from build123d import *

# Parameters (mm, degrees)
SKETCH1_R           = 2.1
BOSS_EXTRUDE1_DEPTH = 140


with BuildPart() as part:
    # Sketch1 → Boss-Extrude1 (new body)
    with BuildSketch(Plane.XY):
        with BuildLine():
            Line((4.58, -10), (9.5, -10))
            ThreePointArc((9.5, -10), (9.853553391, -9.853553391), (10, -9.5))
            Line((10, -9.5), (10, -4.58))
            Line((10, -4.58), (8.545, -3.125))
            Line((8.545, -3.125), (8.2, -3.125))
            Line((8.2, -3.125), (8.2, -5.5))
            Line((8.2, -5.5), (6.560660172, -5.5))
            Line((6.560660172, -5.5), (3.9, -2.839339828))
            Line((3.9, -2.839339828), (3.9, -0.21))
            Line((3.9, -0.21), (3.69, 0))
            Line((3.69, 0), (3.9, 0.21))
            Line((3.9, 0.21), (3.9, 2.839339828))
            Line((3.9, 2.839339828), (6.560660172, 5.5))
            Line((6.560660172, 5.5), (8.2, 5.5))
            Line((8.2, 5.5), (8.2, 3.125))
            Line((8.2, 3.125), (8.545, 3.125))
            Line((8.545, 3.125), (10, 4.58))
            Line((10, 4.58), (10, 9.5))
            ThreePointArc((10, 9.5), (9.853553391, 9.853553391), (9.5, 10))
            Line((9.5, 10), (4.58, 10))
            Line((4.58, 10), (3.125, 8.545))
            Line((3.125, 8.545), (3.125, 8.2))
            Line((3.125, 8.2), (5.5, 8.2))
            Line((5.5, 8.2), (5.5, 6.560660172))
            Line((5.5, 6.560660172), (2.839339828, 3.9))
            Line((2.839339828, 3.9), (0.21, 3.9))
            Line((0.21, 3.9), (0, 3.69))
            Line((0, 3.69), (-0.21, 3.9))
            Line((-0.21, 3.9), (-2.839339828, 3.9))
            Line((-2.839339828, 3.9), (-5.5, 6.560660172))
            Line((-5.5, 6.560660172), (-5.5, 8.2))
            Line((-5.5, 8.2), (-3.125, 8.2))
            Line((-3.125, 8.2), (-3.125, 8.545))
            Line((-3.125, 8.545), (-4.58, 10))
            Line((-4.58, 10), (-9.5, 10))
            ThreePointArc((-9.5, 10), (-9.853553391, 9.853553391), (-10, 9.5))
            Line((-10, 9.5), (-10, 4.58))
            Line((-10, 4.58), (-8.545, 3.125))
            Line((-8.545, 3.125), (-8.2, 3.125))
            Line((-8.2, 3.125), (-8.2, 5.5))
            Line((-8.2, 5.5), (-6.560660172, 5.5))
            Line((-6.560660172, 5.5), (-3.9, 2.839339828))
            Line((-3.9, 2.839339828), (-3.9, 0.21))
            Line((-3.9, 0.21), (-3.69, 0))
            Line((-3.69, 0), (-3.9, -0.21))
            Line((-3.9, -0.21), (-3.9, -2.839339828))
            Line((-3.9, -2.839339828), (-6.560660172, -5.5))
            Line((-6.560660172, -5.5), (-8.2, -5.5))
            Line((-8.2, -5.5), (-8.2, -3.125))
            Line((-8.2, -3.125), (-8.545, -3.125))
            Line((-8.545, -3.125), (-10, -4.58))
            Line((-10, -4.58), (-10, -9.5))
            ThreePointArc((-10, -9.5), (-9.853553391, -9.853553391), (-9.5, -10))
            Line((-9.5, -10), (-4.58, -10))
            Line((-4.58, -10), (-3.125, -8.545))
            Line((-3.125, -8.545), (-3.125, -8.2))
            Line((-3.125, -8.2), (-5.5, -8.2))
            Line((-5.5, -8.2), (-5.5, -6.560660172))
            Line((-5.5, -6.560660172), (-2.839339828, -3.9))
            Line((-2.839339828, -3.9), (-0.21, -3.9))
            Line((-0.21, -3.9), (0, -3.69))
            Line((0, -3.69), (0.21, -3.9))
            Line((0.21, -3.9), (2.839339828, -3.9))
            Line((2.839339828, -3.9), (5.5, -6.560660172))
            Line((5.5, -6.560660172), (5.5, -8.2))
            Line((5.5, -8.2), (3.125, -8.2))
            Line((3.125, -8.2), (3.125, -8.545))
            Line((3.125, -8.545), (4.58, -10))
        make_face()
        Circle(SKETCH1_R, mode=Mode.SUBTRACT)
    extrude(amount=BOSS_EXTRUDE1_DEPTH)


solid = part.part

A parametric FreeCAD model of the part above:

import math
import FreeCAD as App
import Part
import Sketcher
from FreeCAD import Vector

doc = App.newDocument("Part")
body = doc.addObject("PartDesign::Body", "Body")

sketch1 = body.newObject("Sketcher::SketchObject", "Sketch")
sketch1.AttachmentSupport = (doc.getObject("XY_Plane"), [""])
sketch1.MapMode = "FlatFace"
sketch1.addGeometry([
    Part.LineSegment(Vector(4.58, -10, 0), Vector(9.5, -10, 0)),
    Part.ArcOfCircle(Part.Circle(Vector(9.5, -9.5, 0), Vector(0, 0, 1), 0.5), math.radians(-90), math.radians(0)),
    Part.LineSegment(Vector(10, -9.5, 0), Vector(10, -4.58, 0)),
    Part.LineSegment(Vector(10, -4.58, 0), Vector(8.54, -3.12, 0)),
    Part.LineSegment(Vector(8.54, -3.12, 0), Vector(8.2, -3.12, 0)),
    Part.LineSegment(Vector(8.2, -3.12, 0), Vector(8.2, -5.5, 0)),
    Part.LineSegment(Vector(8.2, -5.5, 0), Vector(6.56, -5.5, 0)),
    Part.LineSegment(Vector(6.56, -5.5, 0), Vector(3.9, -2.84, 0)),
    Part.LineSegment(Vector(3.9, -2.84, 0), Vector(3.9, -0.21, 0)),
    Part.LineSegment(Vector(3.9, -0.21, 0), Vector(3.69, 0, 0)),
    Part.LineSegment(Vector(3.69, 0, 0), Vector(3.9, 0.21, 0)),
    Part.LineSegment(Vector(3.9, 0.21, 0), Vector(3.9, 2.84, 0)),
    Part.LineSegment(Vector(3.9, 2.84, 0), Vector(6.56, 5.5, 0)),
    Part.LineSegment(Vector(6.56, 5.5, 0), Vector(8.2, 5.5, 0)),
    Part.LineSegment(Vector(8.2, 5.5, 0), Vector(8.2, 3.12, 0)),
    Part.LineSegment(Vector(8.2, 3.12, 0), Vector(8.54, 3.12, 0)),
    Part.LineSegment(Vector(8.54, 3.12, 0), Vector(10, 4.58, 0)),
    Part.LineSegment(Vector(10, 4.58, 0), Vector(10, 9.5, 0)),
    Part.ArcOfCircle(Part.Circle(Vector(9.5, 9.5, 0), Vector(0, 0, 1), 0.5), math.radians(0), math.radians(90)),
    Part.LineSegment(Vector(9.5, 10, 0), Vector(4.58, 10, 0)),
    Part.LineSegment(Vector(4.58, 10, 0), Vector(3.12, 8.54, 0)),
    Part.LineSegment(Vector(3.12, 8.54, 0), Vector(3.12, 8.2, 0)),
    Part.LineSegment(Vector(3.12, 8.2, 0), Vector(5.5, 8.2, 0)),
    Part.LineSegment(Vector(5.5, 8.2, 0), Vector(5.5, 6.56, 0)),
    Part.LineSegment(Vector(5.5, 6.56, 0), Vector(2.84, 3.9, 0)),
    Part.LineSegment(Vector(2.84, 3.9, 0), Vector(0.21, 3.9, 0)),
    Part.LineSegment(Vector(0.21, 3.9, 0), Vector(0, 3.69, 0)),
    Part.LineSegment(Vector(0, 3.69, 0), Vector(-0.21, 3.9, 0)),
    Part.LineSegment(Vector(-0.21, 3.9, 0), Vector(-2.84, 3.9, 0)),
    Part.LineSegment(Vector(-2.84, 3.9, 0), Vector(-5.5, 6.56, 0)),
    Part.LineSegment(Vector(-5.5, 6.56, 0), Vector(-5.5, 8.2, 0)),
    Part.LineSegment(Vector(-5.5, 8.2, 0), Vector(-3.12, 8.2, 0)),
    Part.LineSegment(Vector(-3.12, 8.2, 0), Vector(-3.12, 8.54, 0)),
    Part.LineSegment(Vector(-3.12, 8.54, 0), Vector(-4.58, 10, 0)),
    Part.LineSegment(Vector(-4.58, 10, 0), Vector(-9.5, 10, 0)),
    Part.ArcOfCircle(Part.Circle(Vector(-9.5, 9.5, 0), Vector(0, 0, 1), 0.5), math.radians(90), math.radians(180)),
    Part.LineSegment(Vector(-10, 9.5, 0), Vector(-10, 4.58, 0)),
    Part.LineSegment(Vector(-10, 4.58, 0), Vector(-8.54, 3.12, 0)),
    Part.LineSegment(Vector(-8.54, 3.12, 0), Vector(-8.2, 3.12, 0)),
    Part.LineSegment(Vector(-8.2, 3.12, 0), Vector(-8.2, 5.5, 0)),
    Part.LineSegment(Vector(-8.2, 5.5, 0), Vector(-6.56, 5.5, 0)),
    Part.LineSegment(Vector(-6.56, 5.5, 0), Vector(-3.9, 2.84, 0)),
    Part.LineSegment(Vector(-3.9, 2.84, 0), Vector(-3.9, 0.21, 0)),
    Part.LineSegment(Vector(-3.9, 0.21, 0), Vector(-3.69, 0, 0)),
    Part.LineSegment(Vector(-3.69, 0, 0), Vector(-3.9, -0.21, 0)),
    Part.LineSegment(Vector(-3.9, -0.21, 0), Vector(-3.9, -2.84, 0)),
    Part.LineSegment(Vector(-3.9, -2.84, 0), Vector(-6.56, -5.5, 0)),
    Part.LineSegment(Vector(-6.56, -5.5, 0), Vector(-8.2, -5.5, 0)),
    Part.LineSegment(Vector(-8.2, -5.5, 0), Vector(-8.2, -3.12, 0)),
    Part.LineSegment(Vector(-8.2, -3.12, 0), Vector(-8.54, -3.12, 0)),
    Part.LineSegment(Vector(-8.54, -3.12, 0), Vector(-10, -4.58, 0)),
    Part.LineSegment(Vector(-10, -4.58, 0), Vector(-10, -9.5, 0)),
    Part.ArcOfCircle(Part.Circle(Vector(-9.5, -9.5, 0), Vector(0, 0, 1), 0.5), math.radians(180), math.radians(270)),
    Part.LineSegment(Vector(-9.5, -10, 0), Vector(-4.58, -10, 0)),
    Part.LineSegment(Vector(-4.58, -10, 0), Vector(-3.12, -8.54, 0)),
    Part.LineSegment(Vector(-3.12, -8.54, 0), Vector(-3.12, -8.2, 0)),
    Part.LineSegment(Vector(-3.12, -8.2, 0), Vector(-5.5, -8.2, 0)),
    Part.LineSegment(Vector(-5.5, -8.2, 0), Vector(-5.5, -6.56, 0)),
    Part.LineSegment(Vector(-5.5, -6.56, 0), Vector(-2.84, -3.9, 0)),
    Part.LineSegment(Vector(-2.84, -3.9, 0), Vector(-0.21, -3.9, 0)),
    Part.LineSegment(Vector(-0.21, -3.9, 0), Vector(0, -3.69, 0)),
    Part.LineSegment(Vector(0, -3.69, 0), Vector(0.21, -3.9, 0)),
    Part.LineSegment(Vector(0.21, -3.9, 0), Vector(2.84, -3.9, 0)),
    Part.LineSegment(Vector(2.84, -3.9, 0), Vector(5.5, -6.56, 0)),
    Part.LineSegment(Vector(5.5, -6.56, 0), Vector(5.5, -8.2, 0)),
    Part.LineSegment(Vector(5.5, -8.2, 0), Vector(3.12, -8.2, 0)),
    Part.LineSegment(Vector(3.12, -8.2, 0), Vector(3.12, -8.54, 0)),
    Part.LineSegment(Vector(3.12, -8.54, 0), Vector(4.58, -10, 0)),
    Part.Circle(Vector(0, 0, 0), Vector(0, 0, 1), 2.1),
], False)
sketch1.addConstraint([
    Sketcher.Constraint("Tangent", 0, 2, 1, 1),
    Sketcher.Constraint("Tangent", 1, 2, 2, 1),
    Sketcher.Constraint("Coincident", 2, 2, 3, 1),
    Sketcher.Constraint("Coincident", 3, 2, 4, 1),
    Sketcher.Constraint("Coincident", 4, 2, 5, 1),
    Sketcher.Constraint("Coincident", 5, 2, 6, 1),
    Sketcher.Constraint("Coincident", 6, 2, 7, 1),
    Sketcher.Constraint("Coincident", 7, 2, 8, 1),
    Sketcher.Constraint("Coincident", 8, 2, 9, 1),
    Sketcher.Constraint("Coincident", 9, 2, 10, 1),
    Sketcher.Constraint("Coincident", 10, 2, 11, 1),
    Sketcher.Constraint("Coincident", 11, 2, 12, 1),
    Sketcher.Constraint("Coincident", 12, 2, 13, 1),
    Sketcher.Constraint("Coincident", 13, 2, 14, 1),
    Sketcher.Constraint("Coincident", 14, 2, 15, 1),
    Sketcher.Constraint("Coincident", 15, 2, 16, 1),
    Sketcher.Constraint("Coincident", 16, 2, 17, 1),
    Sketcher.Constraint("Tangent", 17, 2, 18, 1),
    Sketcher.Constraint("Tangent", 18, 2, 19, 1),
    Sketcher.Constraint("Coincident", 19, 2, 20, 1),
    Sketcher.Constraint("Coincident", 20, 2, 21, 1),
    Sketcher.Constraint("Coincident", 21, 2, 22, 1),
    Sketcher.Constraint("Coincident", 22, 2, 23, 1),
    Sketcher.Constraint("Coincident", 23, 2, 24, 1),
    Sketcher.Constraint("Coincident", 24, 2, 25, 1),
    Sketcher.Constraint("Coincident", 25, 2, 26, 1),
    Sketcher.Constraint("Coincident", 26, 2, 27, 1),
    Sketcher.Constraint("Coincident", 27, 2, 28, 1),
    Sketcher.Constraint("Coincident", 28, 2, 29, 1),
    Sketcher.Constraint("Coincident", 29, 2, 30, 1),
    Sketcher.Constraint("Coincident", 30, 2, 31, 1),
    Sketcher.Constraint("Coincident", 31, 2, 32, 1),
    Sketcher.Constraint("Coincident", 32, 2, 33, 1),
    Sketcher.Constraint("Coincident", 33, 2, 34, 1),
    Sketcher.Constraint("Tangent", 34, 2, 35, 1),
    Sketcher.Constraint("Tangent", 35, 2, 36, 1),
    Sketcher.Constraint("Coincident", 36, 2, 37, 1),
    Sketcher.Constraint("Coincident", 37, 2, 38, 1),
    Sketcher.Constraint("Coincident", 38, 2, 39, 1),
    Sketcher.Constraint("Coincident", 39, 2, 40, 1),
    Sketcher.Constraint("Coincident", 40, 2, 41, 1),
    Sketcher.Constraint("Coincident", 41, 2, 42, 1),
    Sketcher.Constraint("Coincident", 42, 2, 43, 1),
    Sketcher.Constraint("Coincident", 43, 2, 44, 1),
    Sketcher.Constraint("Coincident", 44, 2, 45, 1),
    Sketcher.Constraint("Coincident", 45, 2, 46, 1),
    Sketcher.Constraint("Coincident", 46, 2, 47, 1),
    Sketcher.Constraint("Coincident", 47, 2, 48, 1),
    Sketcher.Constraint("Coincident", 48, 2, 49, 1),
    Sketcher.Constraint("Coincident", 49, 2, 50, 1),
    Sketcher.Constraint("Coincident", 50, 2, 51, 1),
    Sketcher.Constraint("Tangent", 51, 2, 52, 1),
    Sketcher.Constraint("Tangent", 52, 2, 53, 1),
    Sketcher.Constraint("Coincident", 53, 2, 54, 1),
    Sketcher.Constraint("Coincident", 54, 2, 55, 1),
    Sketcher.Constraint("Coincident", 55, 2, 56, 1),
    Sketcher.Constraint("Coincident", 56, 2, 57, 1),
    Sketcher.Constraint("Coincident", 57, 2, 58, 1),
    Sketcher.Constraint("Coincident", 58, 2, 59, 1),
    Sketcher.Constraint("Coincident", 59, 2, 60, 1),
    Sketcher.Constraint("Coincident", 60, 2, 61, 1),
    Sketcher.Constraint("Coincident", 61, 2, 62, 1),
    Sketcher.Constraint("Coincident", 62, 2, 63, 1),
    Sketcher.Constraint("Coincident", 63, 2, 64, 1),
    Sketcher.Constraint("Coincident", 64, 2, 65, 1),
    Sketcher.Constraint("Coincident", 65, 2, 66, 1),
    Sketcher.Constraint("Coincident", 66, 2, 67, 1),
    Sketcher.Constraint("Coincident", 67, 2, 0, 1),
    Sketcher.Constraint("Horizontal", 0),
    Sketcher.Constraint("Vertical", 2),
    Sketcher.Constraint("Horizontal", 4),
    Sketcher.Constraint("Vertical", 5),
    Sketcher.Constraint("Horizontal", 6),
    Sketcher.Constraint("Vertical", 8),
    Sketcher.Constraint("Vertical", 11),
    Sketcher.Constraint("Horizontal", 13),
    Sketcher.Constraint("Vertical", 14),
    Sketcher.Constraint("Horizontal", 15),
    Sketcher.Constraint("Vertical", 17),
    Sketcher.Constraint("Horizontal", 19),
    Sketcher.Constraint("Vertical", 21),
    Sketcher.Constraint("Horizontal", 22),
    Sketcher.Constraint("Vertical", 23),
    Sketcher.Constraint("Horizontal", 25),
    Sketcher.Constraint("Horizontal", 28),
    Sketcher.Constraint("Vertical", 30),
    Sketcher.Constraint("Horizontal", 31),
    Sketcher.Constraint("Vertical", 32),
    Sketcher.Constraint("Horizontal", 34),
    Sketcher.Constraint("Vertical", 36),
    Sketcher.Constraint("Horizontal", 38),
    Sketcher.Constraint("Vertical", 39),
    Sketcher.Constraint("Horizontal", 40),
    Sketcher.Constraint("Vertical", 42),
    Sketcher.Constraint("Vertical", 45),
    Sketcher.Constraint("Horizontal", 47),
    Sketcher.Constraint("Vertical", 48),
    Sketcher.Constraint("Horizontal", 49),
    Sketcher.Constraint("Vertical", 51),
    Sketcher.Constraint("Horizontal", 53),
    Sketcher.Constraint("Vertical", 55),
    Sketcher.Constraint("Horizontal", 56),
    Sketcher.Constraint("Vertical", 57),
    Sketcher.Constraint("Horizontal", 59),
    Sketcher.Constraint("Horizontal", 62),
    Sketcher.Constraint("Vertical", 64),
    Sketcher.Constraint("Horizontal", 65),
    Sketcher.Constraint("Vertical", 66),
    Sketcher.Constraint("Coincident", 68, 3, -1, 1),
    Sketcher.Constraint("Equal", 1, 18),
    Sketcher.Constraint("Equal", 18, 35),
    Sketcher.Constraint("Equal", 35, 52),
    Sketcher.Constraint("Symmetric", 1, 3, 35, 3, -1, 1),
    Sketcher.Constraint("Symmetric", 18, 3, 52, 3, -1, 1),
    Sketcher.Constraint("Symmetric", 3, 2, 37, 2, -1, 1),
    Sketcher.Constraint("Symmetric", 5, 2, 39, 2, -1, 1),
    Sketcher.Constraint("Symmetric", 7, 2, 41, 2, -1, 1),
    Sketcher.Constraint("Symmetric", 9, 2, 43, 2, -1, 1),
    Sketcher.Constraint("Symmetric", 10, 2, 44, 2, -1, 1),
    Sketcher.Constraint("Symmetric", 12, 2, 46, 2, -1, 1),
    Sketcher.Constraint("Symmetric", 14, 2, 48, 2, -1, 1),
    Sketcher.Constraint("Symmetric", 20, 2, 54, 2, -1, 1),
    Sketcher.Constraint("Symmetric", 22, 2, 56, 2, -1, 1),
    Sketcher.Constraint("Symmetric", 24, 2, 58, 2, -1, 1),
    Sketcher.Constraint("Symmetric", 26, 2, 60, 2, -1, 1),
    Sketcher.Constraint("Symmetric", 27, 2, 61, 2, -1, 1),
    Sketcher.Constraint("Symmetric", 29, 2, 63, 2, -1, 1),
    Sketcher.Constraint("Symmetric", 31, 2, 65, 2, -1, 1),
    Sketcher.Constraint("Symmetric", 18, 3, 35, 3, -2),
    Sketcher.Constraint("Symmetric", 25, 2, 27, 2, -2),
    Sketcher.Constraint("Symmetric", 23, 2, 29, 2, -2),
    Sketcher.Constraint("Symmetric", 21, 2, 31, 2, -2),
    Sketcher.Constraint("Symmetric", 15, 2, 37, 2, -2),
    Sketcher.Constraint("Symmetric", 13, 2, 39, 2, -2),
    Sketcher.Constraint("Symmetric", 11, 2, 41, 2, -2),
    Sketcher.Constraint("PointOnObject", 9, 2, -1),
    Sketcher.Constraint("PointOnObject", 26, 2, -2),
    Sketcher.Constraint("Parallel", 3, 7),
    Sketcher.Constraint("Parallel", 7, 9),
    Sketcher.Constraint("Perpendicular", 9, 10),
    Sketcher.Constraint("Parallel", 10, 12),
    Sketcher.Constraint("Parallel", 12, 16),
    Sketcher.Constraint("Parallel", 16, 20),
    Sketcher.Constraint("Parallel", 20, 24),
    Sketcher.Constraint("Parallel", 24, 26),
    Sketcher.Constraint("Perpendicular", 26, 27),
    Sketcher.Constraint("Parallel", 27, 29),
    Sketcher.Constraint("Parallel", 29, 33),
    Sketcher.Constraint("Parallel", 33, 37),
    Sketcher.Constraint("Parallel", 37, 41),
    Sketcher.Constraint("Parallel", 41, 43),
    Sketcher.Constraint("Parallel", 44, 46),
    Sketcher.Constraint("Parallel", 46, 50),
    Sketcher.Constraint("Parallel", 50, 54),
    Sketcher.Constraint("Parallel", 54, 58),
    Sketcher.Constraint("Parallel", 58, 60),
    Sketcher.Constraint("Parallel", 61, 63),
    Sketcher.Constraint("Parallel", 63, 67),
    Sketcher.Constraint("Horizontal", 20, 2, 32, 2),
    Sketcher.Constraint("Horizontal", 2, 2, 50, 2),
    Sketcher.Constraint("Horizontal", 54, 2, 66, 2),
    Sketcher.Constraint("Equal", 53, 2),
    Sketcher.Constraint("Equal", 65, 5),
    Sketcher.Constraint("Equal", 62, 8),
    Sketcher.Constraint("Equal", 49, 21),
    Sketcher.Constraint("Equal", 47, 23),
    Sketcher.Constraint("Equal", 16, 20),
    Sketcher.Constraint("Equal", 12, 24),
    Sketcher.Constraint("Equal", 10, 26),
    Sketcher.Constraint("Diameter", 68, 4.2),
    Sketcher.Constraint("Radius", 1, 0.5),
    Sketcher.Constraint("DistanceY", 0, 2, -1, 1, 10.0),
    Sketcher.Constraint("DistanceX", 0, 1, 0, 2, 4.92),
    Sketcher.Constraint("DistanceX", -1, 1, 4, 2, 8.2),
    Sketcher.Constraint("DistanceY", 5, 2, -1, 1, 5.5),
    Sketcher.Constraint("DistanceX", -1, 1, 7, 2, 3.9),
    Sketcher.Constraint("DistanceX", 4, 2, 4, 1, 0.345),
    Sketcher.Constraint("DistanceY", 8, 2, -1, 1, 0.21),
    Sketcher.Constraint("DistanceX", 6, 2, 6, 1, 1.63934),
])
pad1 = body.newObject("PartDesign::Pad", "Pad")
pad1.Profile = sketch1
pad1.Length = 140

doc.recompute()
